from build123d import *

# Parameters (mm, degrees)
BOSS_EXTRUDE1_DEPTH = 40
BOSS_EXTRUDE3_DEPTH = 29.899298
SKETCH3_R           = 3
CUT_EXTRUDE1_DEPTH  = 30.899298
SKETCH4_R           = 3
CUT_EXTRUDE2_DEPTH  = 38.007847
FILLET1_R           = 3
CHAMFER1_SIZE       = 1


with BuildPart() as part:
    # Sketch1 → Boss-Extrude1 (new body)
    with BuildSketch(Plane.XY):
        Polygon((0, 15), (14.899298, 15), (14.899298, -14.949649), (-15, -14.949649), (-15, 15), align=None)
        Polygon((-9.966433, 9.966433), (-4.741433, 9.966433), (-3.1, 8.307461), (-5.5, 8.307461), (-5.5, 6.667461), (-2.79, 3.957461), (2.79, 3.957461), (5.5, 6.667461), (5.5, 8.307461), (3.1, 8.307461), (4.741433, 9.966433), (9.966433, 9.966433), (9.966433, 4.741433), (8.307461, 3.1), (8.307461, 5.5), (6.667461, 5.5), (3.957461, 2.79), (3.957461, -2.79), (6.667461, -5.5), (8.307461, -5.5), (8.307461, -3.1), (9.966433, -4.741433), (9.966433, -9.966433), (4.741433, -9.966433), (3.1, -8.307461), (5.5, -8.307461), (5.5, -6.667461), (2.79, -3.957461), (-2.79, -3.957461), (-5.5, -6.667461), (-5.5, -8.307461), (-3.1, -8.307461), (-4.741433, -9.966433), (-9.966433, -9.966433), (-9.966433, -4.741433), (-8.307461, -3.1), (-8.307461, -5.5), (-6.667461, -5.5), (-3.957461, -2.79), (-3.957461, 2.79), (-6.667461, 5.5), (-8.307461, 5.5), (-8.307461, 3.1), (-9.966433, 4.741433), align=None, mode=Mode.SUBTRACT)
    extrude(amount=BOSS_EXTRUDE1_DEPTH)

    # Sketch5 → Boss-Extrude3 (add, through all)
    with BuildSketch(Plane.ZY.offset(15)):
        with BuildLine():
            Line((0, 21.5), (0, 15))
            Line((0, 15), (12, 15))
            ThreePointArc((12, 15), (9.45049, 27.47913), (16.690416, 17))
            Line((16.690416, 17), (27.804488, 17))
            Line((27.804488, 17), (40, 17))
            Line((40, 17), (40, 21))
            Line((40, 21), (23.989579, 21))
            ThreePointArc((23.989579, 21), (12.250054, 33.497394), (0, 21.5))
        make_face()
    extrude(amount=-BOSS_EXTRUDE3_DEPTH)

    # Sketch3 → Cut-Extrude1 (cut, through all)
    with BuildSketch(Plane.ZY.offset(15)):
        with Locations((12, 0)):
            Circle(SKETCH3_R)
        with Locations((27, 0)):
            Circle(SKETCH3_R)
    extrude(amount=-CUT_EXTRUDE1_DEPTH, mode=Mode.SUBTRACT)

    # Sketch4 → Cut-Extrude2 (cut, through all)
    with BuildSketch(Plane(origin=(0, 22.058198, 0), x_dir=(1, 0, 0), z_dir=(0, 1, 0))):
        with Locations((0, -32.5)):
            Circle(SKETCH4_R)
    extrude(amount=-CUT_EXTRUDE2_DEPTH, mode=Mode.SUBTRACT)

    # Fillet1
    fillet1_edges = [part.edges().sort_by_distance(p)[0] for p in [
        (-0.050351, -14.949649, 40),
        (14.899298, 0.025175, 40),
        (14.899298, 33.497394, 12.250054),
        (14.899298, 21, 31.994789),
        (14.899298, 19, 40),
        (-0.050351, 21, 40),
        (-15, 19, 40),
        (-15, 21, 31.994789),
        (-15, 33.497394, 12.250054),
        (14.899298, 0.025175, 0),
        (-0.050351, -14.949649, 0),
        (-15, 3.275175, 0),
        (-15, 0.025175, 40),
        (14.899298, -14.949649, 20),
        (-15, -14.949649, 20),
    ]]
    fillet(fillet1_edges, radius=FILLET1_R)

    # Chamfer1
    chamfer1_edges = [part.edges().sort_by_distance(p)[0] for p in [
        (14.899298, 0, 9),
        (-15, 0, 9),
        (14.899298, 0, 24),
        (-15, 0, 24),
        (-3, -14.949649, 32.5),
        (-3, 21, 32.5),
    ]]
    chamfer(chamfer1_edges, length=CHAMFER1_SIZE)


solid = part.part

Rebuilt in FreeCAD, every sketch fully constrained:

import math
import FreeCAD as App
import Part
import Sketcher
from FreeCAD import Vector
Q = App.Units.Quantity


def edges_at(feature, points):
    """Names of the edges that pass closest to the given points."""
    edges = feature.Shape.Edges
    near = lambda p: min(range(len(edges)), key=lambda i: edges[i].distToShape(Part.Vertex(*p))[0])
    return sorted({f"Edge{near(p) + 1}" for p in points})

doc = App.newDocument("Part")
body = doc.addObject("PartDesign::Body", "Body")

sketch1 = body.newObject("Sketcher::SketchObject", "Sketch")
sketch1.AttachmentSupport = (doc.getObject("XY_Plane"), [""])
sketch1.MapMode = "FlatFace"
sketch1.addGeometry([
    Part.LineSegment(Vector(14.9, 15, 0), Vector(-15, 15, 0)),
    Part.LineSegment(Vector(-15, 15, 0), Vector(-15, -14.9, 0)),
    Part.LineSegment(Vector(-15, -14.9, 0), Vector(14.9, -14.9, 0)),
    Part.LineSegment(Vector(14.9, -14.9, 0), Vector(14.9, 15, 0)),
    Part.LineSegment(Vector(-10, 10, 0), Vector(-4.7, 10, 0)),
    Part.LineSegment(Vector(-4.7, 10, 0), Vector(-3.1, 8.3, 0)),
    Part.LineSegment(Vector(-3.1, 8.3, 0), Vector(-5.5, 8.3, 0)),
    Part.LineSegment(Vector(-5.5, 8.3, 0), Vector(-5.5, 6.7, 0)),
    Part.LineSegment(Vector(-5.5, 6.7, 0), Vector(-2.8, 4, 0)),
    Part.LineSegment(Vector(-2.8, 4, 0), Vector(2.8, 4, 0)),
    Part.LineSegment(Vector(2.8, 4, 0), Vector(5.5, 6.7, 0)),
    Part.LineSegment(Vector(5.5, 6.7, 0), Vector(5.5, 8.3, 0)),
    Part.LineSegment(Vector(5.5, 8.3, 0), Vector(3.1, 8.3, 0)),
    Part.LineSegment(Vector(3.1, 8.3, 0), Vector(4.7, 10, 0)),
    Part.LineSegment(Vector(4.7, 10, 0), Vector(10, 10, 0)),
    Part.LineSegment(Vector(10, 10, 0), Vector(10, 4.7, 0)),
    Part.LineSegment(Vector(10, 4.7, 0), Vector(8.3, 3.1, 0)),
    Part.LineSegment(Vector(8.3, 3.1, 0), Vector(8.3, 5.5, 0)),
    Part.LineSegment(Vector(8.3, 5.5, 0), Vector(6.7, 5.5, 0)),
    Part.LineSegment(Vector(6.7, 5.5, 0), Vector(4, 2.8, 0)),
    Part.LineSegment(Vector(4, 2.8, 0), Vector(4, -2.8, 0)),
    Part.LineSegment(Vector(4, -2.8, 0), Vector(6.7, -5.5, 0)),
    Part.LineSegment(Vector(6.7, -5.5, 0), Vector(8.3, -5.5, 0)),
    Part.LineSegment(Vector(8.3, -5.5, 0), Vector(8.3, -3.1, 0)),
    Part.LineSegment(Vector(8.3, -3.1, 0), Vector(10, -4.7, 0)),
    Part.LineSegment(Vector(10, -4.7, 0), Vector(10, -10, 0)),
    Part.LineSegment(Vector(10, -10, 0), Vector(4.7, -10, 0)),
    Part.LineSegment(Vector(4.7, -10, 0), Vector(3.1, -8.3, 0)),
    Part.LineSegment(Vector(3.1, -8.3, 0), Vector(5.5, -8.3, 0)),
    Part.LineSegment(Vector(5.5, -8.3, 0), Vector(5.5, -6.7, 0)),
    Part.LineSegment(Vector(5.5, -6.7, 0), Vector(2.8, -4, 0)),
    Part.LineSegment(Vector(2.8, -4, 0), Vector(-2.8, -4, 0)),
    Part.LineSegment(Vector(-2.8, -4, 0), Vector(-5.5, -6.7, 0)),
    Part.LineSegment(Vector(-5.5, -6.7, 0), Vector(-5.5, -8.3, 0)),
    Part.LineSegment(Vector(-5.5, -8.3, 0), Vector(-3.1, -8.3, 0)),
    Part.LineSegment(Vector(-3.1, -8.3, 0), Vector(-4.7, -10, 0)),
    Part.LineSegment(Vector(-4.7, -10, 0), Vector(-10, -10, 0)),
    Part.LineSegment(Vector(-10, -10, 0), Vector(-10, -4.7, 0)),
    Part.LineSegment(Vector(-10, -4.7, 0), Vector(-8.3, -3.1, 0)),
    Part.LineSegment(Vector(-8.3, -3.1, 0), Vector(-8.3, -5.5, 0)),
    Part.LineSegment(Vector(-8.3, -5.5, 0), Vector(-6.7, -5.5, 0)),
    Part.LineSegment(Vector(-6.7, -5.5, 0), Vector(-4, -2.8, 0)),
    Part.LineSegment(Vector(-4, -2.8, 0), Vector(-4, 2.8, 0)),
    Part.LineSegment(Vector(-4, 2.8, 0), Vector(-6.7, 5.5, 0)),
    Part.LineSegment(Vector(-6.7, 5.5, 0), Vector(-8.3, 5.5, 0)),
    Part.LineSegment(Vector(-8.3, 5.5, 0), Vector(-8.3, 3.1, 0)),
    Part.LineSegment(Vector(-8.3, 3.1, 0), Vector(-10, 4.7, 0)),
    Part.LineSegment(Vector(-10, 4.7, 0), Vector(-10, 10, 0)),
], False)
sketch1.addConstraint([
    Sketcher.Constraint("Coincident", 0, 2, 1, 1),
    Sketcher.Constraint("Coincident", 1, 2, 2, 1),
    Sketcher.Constraint("Coincident", 2, 2, 3, 1),
    Sketcher.Constraint("Coincident", 3, 2, 0, 1),
    Sketcher.Constraint("Coincident", 4, 2, 5, 1),
    Sketcher.Constraint("Coincident", 5, 2, 6, 1),
    Sketcher.Constraint("Coincident", 6, 2, 7, 1),
    Sketcher.Constraint("Coincident", 7, 2, 8, 1),
    Sketcher.Constraint("Coincident", 8, 2, 9, 1),
    Sketcher.Constraint("Coincident", 9, 2, 10, 1),
    Sketcher.Constraint("Coincident", 10, 2, 11, 1),
    Sketcher.Constraint("Coincident", 11, 2, 12, 1),
    Sketcher.Constraint("Coincident", 12, 2, 13, 1),
    Sketcher.Constraint("Coincident", 13, 2, 14, 1),
    Sketcher.Constraint("Coincident", 14, 2, 15, 1),
    Sketcher.Constraint("Coincident", 15, 2, 16, 1),
    Sketcher.Constraint("Coincident", 16, 2, 17, 1),
    Sketcher.Constraint("Coincident", 17, 2, 18, 1),
    Sketcher.Constraint("Coincident", 18, 2, 19, 1),
    Sketcher.Constraint("Coincident", 19, 2, 20, 1),
    Sketcher.Constraint("Coincident", 20, 2, 21, 1),
    Sketcher.Constraint("Coincident", 21, 2, 22, 1),
    Sketcher.Constraint("Coincident", 22, 2, 23, 1),
    Sketcher.Constraint("Coincident", 23, 2, 24, 1),
    Sketcher.Constraint("Coincident", 24, 2, 25, 1),
    Sketcher.Constraint("Coincident", 25, 2, 26, 1),
    Sketcher.Constraint("Coincident", 26, 2, 27, 1),
    Sketcher.Constraint("Coincident", 27, 2, 28, 1),
    Sketcher.Constraint("Coincident", 28, 2, 29, 1),
    Sketcher.Constraint("Coincident", 29, 2, 30, 1),
    Sketcher.Constraint("Coincident", 30, 2, 31, 1),
    Sketcher.Constraint("Coincident", 31, 2, 32, 1),
    Sketcher.Constraint("Coincident", 32, 2, 33, 1),
    Sketcher.Constraint("Coincident", 33, 2, 34, 1),
    Sketcher.Constraint("Coincident", 34, 2, 35, 1),
    Sketcher.Constraint("Coincident", 35, 2, 36, 1),
    Sketcher.Constraint("Coincident", 36, 2, 37, 1),
    Sketcher.Constraint("Coincident", 37, 2, 38, 1),
    Sketcher.Constraint("Coincident", 38, 2, 39, 1),
    Sketcher.Constraint("Coincident", 39, 2, 40, 1),
    Sketcher.Constraint("Coincident", 40, 2, 41, 1),
    Sketcher.Constraint("Coincident", 41, 2, 42, 1),
    Sketcher.Constraint("Coincident", 42, 2, 43, 1),
    Sketcher.Constraint("Coincident", 43, 2, 44, 1),
    Sketcher.Constraint("Coincident", 44, 2, 45, 1),
    Sketcher.Constraint("Coincident", 45, 2, 46, 1),
    Sketcher.Constraint("Coincident", 46, 2, 47, 1),
    Sketcher.Constraint("Coincident", 47, 2, 4, 1),
    Sketcher.Constraint("Horizontal", 0),
    Sketcher.Constraint("Vertical", 1),
    Sketcher.Constraint("Horizontal", 2),
    Sketcher.Constraint("Vertical", 3),
    Sketcher.Constraint("Horizontal", 4),
    Sketcher.Constraint("Horizontal", 6),
    Sketcher.Constraint("Vertical", 7),
    Sketcher.Constraint("Horizontal", 9),
    Sketcher.Constraint("Vertical", 11),
    Sketcher.Constraint("Horizontal", 12),
    Sketcher.Constraint("Horizontal", 14),
    Sketcher.Constraint("Vertical", 15),
    Sketcher.Constraint("Vertical", 17),
    Sketcher.Constraint("Horizontal", 18),
    Sketcher.Constraint("Vertical", 20),
    Sketcher.Constraint("Horizontal", 22),
    Sketcher.Constraint("Vertical", 23),
    Sketcher.Constraint("Vertical", 25),
    Sketcher.Constraint("Horizontal", 26),
    Sketcher.Constraint("Horizontal", 28),
    Sketcher.Constraint("Vertical", 29),
    Sketcher.Constraint("Horizontal", 31),
    Sketcher.Constraint("Vertical", 33),
    Sketcher.Constraint("Horizontal", 34),
    Sketcher.Constraint("Horizontal", 36),
    Sketcher.Constraint("Vertical", 37),
    Sketcher.Constraint("Vertical", 39),
    Sketcher.Constraint("Horizontal", 40),
    Sketcher.Constraint("Vertical", 42),
    Sketcher.Constraint("Horizontal", 44),
    Sketcher.Constraint("Vertical", 45),
    Sketcher.Constraint("Vertical", 47),
    Sketcher.Constraint("Symmetric", 4, 2, 26, 2, -1, 1),
    Sketcher.Constraint("Symmetric", 5, 2, 27, 2, -1, 1),
    Sketcher.Constraint("Symmetric", 7, 2, 29, 2, -1, 1),
    Sketcher.Constraint("Symmetric", 8, 2, 30, 2, -1, 1),
    Sketcher.Constraint("Symmetric", 10, 2, 32, 2, -1, 1),
    Sketcher.Constraint("Symmetric", 12, 2, 34, 2, -1, 1),
    Sketcher.Constraint("Symmetric", 13, 2, 35, 2, -1, 1),
    Sketcher.Constraint("Symmetric", 15, 2, 37, 2, -1, 1),
    Sketcher.Constraint("Symmetric", 16, 2, 38, 2, -1, 1),
    Sketcher.Constraint("Symmetric", 18, 2, 40, 2, -1, 1),
    Sketcher.Constraint("Symmetric", 19, 2, 41, 2, -1, 1),
    Sketcher.Constraint("Symmetric", 21, 2, 43, 2, -1, 1),
    Sketcher.Constraint("Symmetric", 23, 2, 45, 2, -1, 1),
    Sketcher.Constraint("Symmetric", 24, 2, 46, 2, -1, 1),
    Sketcher.Constraint("Symmetric", 7, 2, 10, 2, -2),
    Sketcher.Constraint("Symmetric", 5, 2, 12, 2, -2),
    Sketcher.Constraint("Symmetric", 4, 2, 13, 2, -2),
    Sketcher.Constraint("Symmetric", 24, 2, 37, 2, -2),
    Sketcher.Constraint("Symmetric", 23, 2, 38, 2, -2),
    Sketcher.Constraint("Symmetric", 21, 2, 40, 2, -2),
    Sketcher.Constraint("Perpendicular", 8, 10),
    Sketcher.Constraint("Perpendicular", 5, 16),
    Sketcher.Constraint("Parallel", 10, 19),
    Sketcher.Constraint("Perpendicular", 19, 21),
    Sketcher.Constraint("Perpendicular", 30, 32),
    Sketcher.Constraint("Perpendicular", 41, 43),
    Sketcher.Constraint("Horizontal", 20, 2, 41, 2),
    Sketcher.Constraint("Equal", 44, 7),
    Sketcher.Constraint("Equal", 36, 15),
    Sketcher.Constraint("Equal", 34, 17),
    Sketcher.Constraint("Equal", 31, 20),
    Sketcher.Constraint("Equal", 13, 16),
    Sketcher.Constraint("Equal", 10, 19),
    Sketcher.Constraint("DistanceX", 6, 2, 6, 1, Q("2.4 mm")),
    Sketcher.Constraint("DistanceX", 0, 2, -1, 1, Q("15 mm")),
    Sketcher.Constraint("DistanceY", -1, 1, 0, 2, Q("15 mm")),
    Sketcher.Constraint("DistanceX", 7, 2, 10, 2, Q("11 mm")),
    Sketcher.Constraint("DistanceX", 9, 1, 9, 2, Q("5.58 mm")),
    Sketcher.Constraint("DistanceX", 18, 2, 18, 1, Q("1.64 mm")),
    Sketcher.Constraint("DistanceX", 4, 1, 4, 2, Q("5.225 mm")),
    Sketcher.Constraint("DistanceX", 0, 2, 0, 1, Q("29.899298 mm")),
    Sketcher.Constraint("DistanceY", 1, 2, 1, 1, Q("29.949649 mm")),
    Sketcher.Constraint("Distance", 5, Q("2.333772 mm")),
    Sketcher.Constraint("DistanceY", -1, 1, 5, 2, Q("8.307461 mm")),
])
pad1 = body.newObject("PartDesign::Pad", "Pad")
pad1.Profile = sketch1
pad1.Length = 40

sketch2 = body.newObject("Sketcher::SketchObject", "Sketch001")
sketch2.AttachmentSupport = (doc.getObject("YZ_Plane"), [""])
sketch2.MapMode = "FlatFace"
sketch2.AttachmentOffset = App.Placement(Vector(0, 0, -15), App.Rotation())
sketch2.addGeometry([
    Part.LineSegment(Vector(21.5, 0, 0), Vector(15, 0, 0)),
    Part.LineSegment(Vector(15, 0, 0), Vector(15, 12, 0)),
    Part.ArcOfCircle(Part.Circle(Vector(21.5, 12, 0), Vector(0, 0, 1), 6.5), math.radians(-180), math.radians(134)),
    Part.LineSegment(Vector(17, 16.7, 0), Vector(17, 40, 0)),
    Part.LineSegment(Vector(17, 40, 0), Vector(21, 40, 0)),
    Part.LineSegment(Vector(21, 40, 0), Vector(21, 24, 0)),
    Part.ArcOfCircle(Part.Circle(Vector(21.5, 12, 0), Vector(0, 0, 1), 12), math.radians(-90), math.radians(92)),
], False)
sketch2.addConstraint([
    Sketcher.Constraint("Coincident", 0, 2, 1, 1),
    Sketcher.Constraint("Tangent", 1, 2, 2, 1),
    Sketcher.Constraint("Coincident", 2, 2, 3, 1),
    Sketcher.Constraint("Coincident", 3, 2, 4, 1),
    Sketcher.Constraint("Coincident", 4, 2, 5, 1),
    Sketcher.Constraint("Coincident", 5, 2, 6, 2),
    Sketcher.Constraint("Tangent", 6, 1, 0, 1),
    Sketcher.Constraint("Horizontal", 0),
    Sketcher.Constraint("Vertical", 1),
    Sketcher.Constraint("Vertical", 3),
    Sketcher.Constraint("Horizontal", 4),
    Sketcher.Constraint("Vertical", 5),
    Sketcher.Constraint("Coincident", 6, 3, 2, 3),
    Sketcher.Constraint("PointOnObject", 0, 2, -1),
    Sketcher.Constraint("Radius", 6, Q("12 mm")),
    Sketcher.Constraint("Radius", 2, Q("6.5 mm")),
    Sketcher.Constraint("DistanceX", 4, 1, 4, 2, Q("4 mm")),
    Sketcher.Constraint("DistanceX", -1, 1, 0, 2, Q("15 mm")),
    Sketcher.Constraint("DistanceX", -1, 1, 2, 2, Q("17 mm")),
    Sketcher.Constraint("DistanceY", -1, 1, 3, 2, Q("40 mm")),
])
pad2 = body.newObject("PartDesign::Pad", "Pad001")
pad2.Profile = sketch2
pad2.Length = 29.899298

sketch3 = body.newObject("Sketcher::SketchObject", "Sketch002")
sketch3.AttachmentSupport = (doc.getObject("YZ_Plane"), [""])
sketch3.MapMode = "FlatFace"
sketch3.AttachmentOffset = App.Placement(Vector(0, 0, -15), App.Rotation())
sketch3.addGeometry([
    Part.Circle(Vector(0, 12, 0), Vector(0, 0, 1), 3),
    Part.Circle(Vector(0, 27, 0), Vector(0, 0, 1), 3),
], False)
sketch3.addConstraint([
    Sketcher.Constraint("Equal", 0, 1),
    Sketcher.Constraint("PointOnObject", 0, 3, -2),
    Sketcher.Constraint("PointOnObject", 1, 3, -2),
    Sketcher.Constraint("Diameter", 0, Q("6 mm")),
    Sketcher.Constraint("DistanceY", -1, 1, 0, 3, Q("12 mm")),
    Sketcher.Constraint("DistanceY", -1, 1, 1, 3, Q("27 mm")),
])
pocket1 = body.newObject("PartDesign::Pocket", "Pocket")
pocket1.Profile = sketch3
pocket1.Type = "ThroughAll"
pocket1.Reversed = True

sketch4 = body.newObject("Sketcher::SketchObject", "Sketch003")
sketch4.AttachmentSupport = (doc.getObject("XZ_Plane"), [""])
sketch4.MapMode = "FlatFace"
sketch4.AttachmentOffset = App.Placement(Vector(0, 0, -22.058198), App.Rotation())
sketch4.addGeometry(Part.Circle(Vector(0, 32.5, 0), Vector(0, 0, 1), 3), False)
sketch4.addConstraint([
    Sketcher.Constraint("PointOnObject", 0, 3, -2),
    Sketcher.Constraint("Diameter", 0, Q("6 mm")),
    Sketcher.Constraint("DistanceY", -1, 1, 0, 3, Q("32.5 mm")),
])
pocket2 = body.newObject("PartDesign::Pocket", "Pocket001")
pocket2.Profile = sketch4
pocket2.Type = "ThroughAll"
pocket2.Reversed = True
doc.recompute()

fillet = body.newObject("PartDesign::Fillet", "Fillet")
fillet.Base = (pocket2, edges_at(pocket2, [
    (-0.05, -14.95, 40),
    (14.899, 0.025, 40),
    (14.899, 33.497, 12.25),
    (14.899, 21, 31.995),
    (14.899, 19, 40),
    (-0.05, 21, 40),
    (-15, 19, 40),
    (-15, 21, 31.995),
    (-15, 33.497, 12.25),
    (14.899, 3.275, 0),
    (-0.05, -14.95, 0),
    (-15, 3.275, 0),
    (-15, 0.025, 40),
    (14.899, -14.95, 20),
    (-15, -14.95, 20),
]))
fillet.Radius = 3
doc.recompute()

chamfer = body.newObject("PartDesign::Chamfer", "Chamfer")
chamfer.Base = (fillet, edges_at(fillet, [
    (14.899, 0, 9),
    (-15, 0, 9),
    (14.899, 0, 24),
    (-15, 0, 24),
    (-3, -14.95, 32.5),
    (-3, 21, 32.5),
]))
chamfer.Size = 1

doc.recompute()
